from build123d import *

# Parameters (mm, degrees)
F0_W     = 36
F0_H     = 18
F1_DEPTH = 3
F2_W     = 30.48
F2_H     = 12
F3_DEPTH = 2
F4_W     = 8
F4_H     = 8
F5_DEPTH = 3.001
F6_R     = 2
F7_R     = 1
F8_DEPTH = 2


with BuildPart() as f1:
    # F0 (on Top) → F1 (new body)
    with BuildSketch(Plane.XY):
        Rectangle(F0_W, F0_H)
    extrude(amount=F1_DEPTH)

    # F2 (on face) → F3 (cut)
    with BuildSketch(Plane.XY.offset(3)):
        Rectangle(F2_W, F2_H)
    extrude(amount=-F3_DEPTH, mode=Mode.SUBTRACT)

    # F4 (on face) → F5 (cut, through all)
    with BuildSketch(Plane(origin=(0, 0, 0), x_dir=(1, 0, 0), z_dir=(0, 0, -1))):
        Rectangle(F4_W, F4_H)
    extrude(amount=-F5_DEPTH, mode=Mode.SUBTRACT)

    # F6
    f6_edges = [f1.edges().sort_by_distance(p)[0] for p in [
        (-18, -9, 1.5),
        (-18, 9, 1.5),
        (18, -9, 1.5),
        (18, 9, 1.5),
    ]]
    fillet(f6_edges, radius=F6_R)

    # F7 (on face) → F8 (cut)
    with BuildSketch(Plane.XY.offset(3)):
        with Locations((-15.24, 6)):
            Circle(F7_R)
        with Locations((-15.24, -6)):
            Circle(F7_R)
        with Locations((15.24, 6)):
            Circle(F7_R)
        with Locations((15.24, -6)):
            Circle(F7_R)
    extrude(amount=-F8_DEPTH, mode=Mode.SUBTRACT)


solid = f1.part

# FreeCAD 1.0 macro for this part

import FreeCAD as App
import Part
import Sketcher

V = App.Vector
Q = App.Units.Quantity


def edges_at(feature, points):
    """Names of the edges that pass closest to the given points."""
    edges = feature.Shape.Edges
    near = lambda p: min(range(len(edges)), key=lambda i: edges[i].distToShape(Part.Vertex(*p))[0])
    return sorted({f"Edge{near(p) + 1}" for p in points})


def add_polygon(sketch, points):
    """Adds a closed chain of lines whose ends are joined by coincident constraints."""
    first, n = sketch.GeometryCount, len(points)
    for a, b in zip(points, points[1:] + points[:1]):
        sketch.addGeometry(Part.LineSegment(App.Vector(*a, 0), App.Vector(*b, 0)), False)
    for i in range(n):
        sketch.addConstraint(Sketcher.Constraint("Coincident", first + i, 2, first + (i + 1) % n, 1))

doc = App.newDocument("Part")
body = doc.addObject("PartDesign::Body", "Body")

sketch1 = body.newObject("Sketcher::SketchObject", "Sketch")
sketch1.AttachmentSupport = (doc.getObject("XY_Plane"), [""])
sketch1.MapMode = "FlatFace"
add_polygon(sketch1, [(-18, 9), (-18, -9), (18, -9), (18, 9)])
sketch1.addConstraint(Sketcher.Constraint("Vertical", 0))
sketch1.addConstraint(Sketcher.Constraint("Horizontal", 1))
sketch1.addConstraint(Sketcher.Constraint("Vertical", 2))
sketch1.addConstraint(Sketcher.Constraint("Horizontal", 3))
sketch1.addConstraint(Sketcher.Constraint("Symmetric", 0, 2, 2, 2, -1, 1))
sketch1.addConstraint(Sketcher.Constraint("DistanceX", 1, 1, 1, 2, Q("36 mm")))
sketch1.addConstraint(Sketcher.Constraint("DistanceY", 0, 2, 0, 1, Q("18 mm")))
pad1 = body.newObject("PartDesign::Pad", "Pad")
pad1.Profile = sketch1
pad1.Length = 3

sketch2 = body.newObject("Sketcher::SketchObject", "Sketch001")
sketch2.AttachmentSupport = (doc.getObject("XY_Plane"), [""])
sketch2.MapMode = "FlatFace"
sketch2.AttachmentOffset = App.Placement(V(0, 0, 3), App.Rotation())
add_polygon(sketch2, [(-15, 6), (-15, -6), (15, -6), (15, 6)])
sketch2.addConstraint(Sketcher.Constraint("Vertical", 0))
sketch2.addConstraint(Sketcher.Constraint("Horizontal", 1))
sketch2.addConstraint(Sketcher.Constraint("Vertical", 2))
sketch2.addConstraint(Sketcher.Constraint("Horizontal", 3))
sketch2.addConstraint(Sketcher.Constraint("Symmetric", 0, 2, 2, 2, -1, 1))
sketch2.addConstraint(Sketcher.Constraint("DistanceY", 0, 2, 0, 1, Q("12 mm")))
sketch2.addConstraint(Sketcher.Constraint("DistanceX", 1, 1, 1, 2, Q("30.48 mm")))
pocket1 = body.newObject("PartDesign::Pocket", "Pocket")
pocket1.Profile = sketch2
pocket1.Length = 2

sketch3 = body.newObject("Sketcher::SketchObject", "Sketch002")
sketch3.AttachmentSupport = (doc.getObject("XY_Plane"), [""])
sketch3.MapMode = "FlatFace"
add_polygon(sketch3, [(-4, -4), (-4, 4), (4, 4), (4, -4)])
sketch3.addConstraint(Sketcher.Constraint("Vertical", 0))
sketch3.addConstraint(Sketcher.Constraint("Horizontal", 1))
sketch3.addConstraint(Sketcher.Constraint("Vertical", 2))
sketch3.addConstraint(Sketcher.Constraint("Horizontal", 3))
sketch3.addConstraint(Sketcher.Constraint("Symmetric", 0, 2, 2, 2, -1, 1))
sketch3.addConstraint(Sketcher.Constraint("Equal", 3, 0))
sketch3.addConstraint(Sketcher.Constraint("DistanceX", 1, 1, 1, 2, Q("8 mm")))
pocket2 = body.newObject("PartDesign::Pocket", "Pocket001")
pocket2.Profile = sketch3
pocket2.Type = "ThroughAll"
pocket2.Reversed = True
doc.recompute()

fillet = body.newObject("PartDesign::Fillet", "Fillet")
fillet.Base = (pocket2, edges_at(pocket2, [
    (-18, -9, 1.5),
    (-18, 9, 1.5),
    (18, -9, 1.5),
    (18, 9, 1.5),
]))
fillet.Radius = 2

sketch4 = body.newObject("Sketcher::SketchObject", "Sketch003")
sketch4.AttachmentSupport = (doc.getObject("XY_Plane"), [""])
sketch4.MapMode = "FlatFace"
sketch4.AttachmentOffset = App.Placement(V(0, 0, 3), App.Rotation())
sketch4.addGeometry(Part.Circle(V(-15.2, 6, 0), V(0, 0, 1), 1), False)
sketch4.addGeometry(Part.Circle(V(-15.2, -6, 0), V(0, 0, 1), 1), False)
sketch4.addGeometry(Part.Circle(V(15.2, 6, 0), V(0, 0, 1), 1), False)
sketch4.addGeometry(Part.Circle(V(15.2, -6, 0), V(0, 0, 1), 1), False)
sketch4.addConstraint(Sketcher.Constraint("Equal", 0, 1))
sketch4.addConstraint(Sketcher.Constraint("Equal", 1, 2))
sketch4.addConstraint(Sketcher.Constraint("Equal", 2, 3))
sketch4.addConstraint(Sketcher.Constraint("Symmetric", 1, 3, 2, 3, -1, 1))
sketch4.addConstraint(Sketcher.Constraint("Symmetric", 0, 3, 3, 3, -1, 1))
sketch4.addConstraint(Sketcher.Constraint("Symmetric", 0, 3, 2, 3, -2))
sketch4.addConstraint(Sketcher.Constraint("Diameter", 0, Q("2 mm")))
sketch4.addConstraint(Sketcher.Constraint("DistanceY", -1, 1, 0, 3, Q("6 mm")))
sketch4.addConstraint(Sketcher.Constraint("DistanceX", 0, 3, -1, 1, Q("15.24 mm")))
pocket3 = body.newObject("PartDesign::Pocket", "Pocket002")
pocket3.Profile = sketch4
pocket3.Length = 2

doc.recompute()
